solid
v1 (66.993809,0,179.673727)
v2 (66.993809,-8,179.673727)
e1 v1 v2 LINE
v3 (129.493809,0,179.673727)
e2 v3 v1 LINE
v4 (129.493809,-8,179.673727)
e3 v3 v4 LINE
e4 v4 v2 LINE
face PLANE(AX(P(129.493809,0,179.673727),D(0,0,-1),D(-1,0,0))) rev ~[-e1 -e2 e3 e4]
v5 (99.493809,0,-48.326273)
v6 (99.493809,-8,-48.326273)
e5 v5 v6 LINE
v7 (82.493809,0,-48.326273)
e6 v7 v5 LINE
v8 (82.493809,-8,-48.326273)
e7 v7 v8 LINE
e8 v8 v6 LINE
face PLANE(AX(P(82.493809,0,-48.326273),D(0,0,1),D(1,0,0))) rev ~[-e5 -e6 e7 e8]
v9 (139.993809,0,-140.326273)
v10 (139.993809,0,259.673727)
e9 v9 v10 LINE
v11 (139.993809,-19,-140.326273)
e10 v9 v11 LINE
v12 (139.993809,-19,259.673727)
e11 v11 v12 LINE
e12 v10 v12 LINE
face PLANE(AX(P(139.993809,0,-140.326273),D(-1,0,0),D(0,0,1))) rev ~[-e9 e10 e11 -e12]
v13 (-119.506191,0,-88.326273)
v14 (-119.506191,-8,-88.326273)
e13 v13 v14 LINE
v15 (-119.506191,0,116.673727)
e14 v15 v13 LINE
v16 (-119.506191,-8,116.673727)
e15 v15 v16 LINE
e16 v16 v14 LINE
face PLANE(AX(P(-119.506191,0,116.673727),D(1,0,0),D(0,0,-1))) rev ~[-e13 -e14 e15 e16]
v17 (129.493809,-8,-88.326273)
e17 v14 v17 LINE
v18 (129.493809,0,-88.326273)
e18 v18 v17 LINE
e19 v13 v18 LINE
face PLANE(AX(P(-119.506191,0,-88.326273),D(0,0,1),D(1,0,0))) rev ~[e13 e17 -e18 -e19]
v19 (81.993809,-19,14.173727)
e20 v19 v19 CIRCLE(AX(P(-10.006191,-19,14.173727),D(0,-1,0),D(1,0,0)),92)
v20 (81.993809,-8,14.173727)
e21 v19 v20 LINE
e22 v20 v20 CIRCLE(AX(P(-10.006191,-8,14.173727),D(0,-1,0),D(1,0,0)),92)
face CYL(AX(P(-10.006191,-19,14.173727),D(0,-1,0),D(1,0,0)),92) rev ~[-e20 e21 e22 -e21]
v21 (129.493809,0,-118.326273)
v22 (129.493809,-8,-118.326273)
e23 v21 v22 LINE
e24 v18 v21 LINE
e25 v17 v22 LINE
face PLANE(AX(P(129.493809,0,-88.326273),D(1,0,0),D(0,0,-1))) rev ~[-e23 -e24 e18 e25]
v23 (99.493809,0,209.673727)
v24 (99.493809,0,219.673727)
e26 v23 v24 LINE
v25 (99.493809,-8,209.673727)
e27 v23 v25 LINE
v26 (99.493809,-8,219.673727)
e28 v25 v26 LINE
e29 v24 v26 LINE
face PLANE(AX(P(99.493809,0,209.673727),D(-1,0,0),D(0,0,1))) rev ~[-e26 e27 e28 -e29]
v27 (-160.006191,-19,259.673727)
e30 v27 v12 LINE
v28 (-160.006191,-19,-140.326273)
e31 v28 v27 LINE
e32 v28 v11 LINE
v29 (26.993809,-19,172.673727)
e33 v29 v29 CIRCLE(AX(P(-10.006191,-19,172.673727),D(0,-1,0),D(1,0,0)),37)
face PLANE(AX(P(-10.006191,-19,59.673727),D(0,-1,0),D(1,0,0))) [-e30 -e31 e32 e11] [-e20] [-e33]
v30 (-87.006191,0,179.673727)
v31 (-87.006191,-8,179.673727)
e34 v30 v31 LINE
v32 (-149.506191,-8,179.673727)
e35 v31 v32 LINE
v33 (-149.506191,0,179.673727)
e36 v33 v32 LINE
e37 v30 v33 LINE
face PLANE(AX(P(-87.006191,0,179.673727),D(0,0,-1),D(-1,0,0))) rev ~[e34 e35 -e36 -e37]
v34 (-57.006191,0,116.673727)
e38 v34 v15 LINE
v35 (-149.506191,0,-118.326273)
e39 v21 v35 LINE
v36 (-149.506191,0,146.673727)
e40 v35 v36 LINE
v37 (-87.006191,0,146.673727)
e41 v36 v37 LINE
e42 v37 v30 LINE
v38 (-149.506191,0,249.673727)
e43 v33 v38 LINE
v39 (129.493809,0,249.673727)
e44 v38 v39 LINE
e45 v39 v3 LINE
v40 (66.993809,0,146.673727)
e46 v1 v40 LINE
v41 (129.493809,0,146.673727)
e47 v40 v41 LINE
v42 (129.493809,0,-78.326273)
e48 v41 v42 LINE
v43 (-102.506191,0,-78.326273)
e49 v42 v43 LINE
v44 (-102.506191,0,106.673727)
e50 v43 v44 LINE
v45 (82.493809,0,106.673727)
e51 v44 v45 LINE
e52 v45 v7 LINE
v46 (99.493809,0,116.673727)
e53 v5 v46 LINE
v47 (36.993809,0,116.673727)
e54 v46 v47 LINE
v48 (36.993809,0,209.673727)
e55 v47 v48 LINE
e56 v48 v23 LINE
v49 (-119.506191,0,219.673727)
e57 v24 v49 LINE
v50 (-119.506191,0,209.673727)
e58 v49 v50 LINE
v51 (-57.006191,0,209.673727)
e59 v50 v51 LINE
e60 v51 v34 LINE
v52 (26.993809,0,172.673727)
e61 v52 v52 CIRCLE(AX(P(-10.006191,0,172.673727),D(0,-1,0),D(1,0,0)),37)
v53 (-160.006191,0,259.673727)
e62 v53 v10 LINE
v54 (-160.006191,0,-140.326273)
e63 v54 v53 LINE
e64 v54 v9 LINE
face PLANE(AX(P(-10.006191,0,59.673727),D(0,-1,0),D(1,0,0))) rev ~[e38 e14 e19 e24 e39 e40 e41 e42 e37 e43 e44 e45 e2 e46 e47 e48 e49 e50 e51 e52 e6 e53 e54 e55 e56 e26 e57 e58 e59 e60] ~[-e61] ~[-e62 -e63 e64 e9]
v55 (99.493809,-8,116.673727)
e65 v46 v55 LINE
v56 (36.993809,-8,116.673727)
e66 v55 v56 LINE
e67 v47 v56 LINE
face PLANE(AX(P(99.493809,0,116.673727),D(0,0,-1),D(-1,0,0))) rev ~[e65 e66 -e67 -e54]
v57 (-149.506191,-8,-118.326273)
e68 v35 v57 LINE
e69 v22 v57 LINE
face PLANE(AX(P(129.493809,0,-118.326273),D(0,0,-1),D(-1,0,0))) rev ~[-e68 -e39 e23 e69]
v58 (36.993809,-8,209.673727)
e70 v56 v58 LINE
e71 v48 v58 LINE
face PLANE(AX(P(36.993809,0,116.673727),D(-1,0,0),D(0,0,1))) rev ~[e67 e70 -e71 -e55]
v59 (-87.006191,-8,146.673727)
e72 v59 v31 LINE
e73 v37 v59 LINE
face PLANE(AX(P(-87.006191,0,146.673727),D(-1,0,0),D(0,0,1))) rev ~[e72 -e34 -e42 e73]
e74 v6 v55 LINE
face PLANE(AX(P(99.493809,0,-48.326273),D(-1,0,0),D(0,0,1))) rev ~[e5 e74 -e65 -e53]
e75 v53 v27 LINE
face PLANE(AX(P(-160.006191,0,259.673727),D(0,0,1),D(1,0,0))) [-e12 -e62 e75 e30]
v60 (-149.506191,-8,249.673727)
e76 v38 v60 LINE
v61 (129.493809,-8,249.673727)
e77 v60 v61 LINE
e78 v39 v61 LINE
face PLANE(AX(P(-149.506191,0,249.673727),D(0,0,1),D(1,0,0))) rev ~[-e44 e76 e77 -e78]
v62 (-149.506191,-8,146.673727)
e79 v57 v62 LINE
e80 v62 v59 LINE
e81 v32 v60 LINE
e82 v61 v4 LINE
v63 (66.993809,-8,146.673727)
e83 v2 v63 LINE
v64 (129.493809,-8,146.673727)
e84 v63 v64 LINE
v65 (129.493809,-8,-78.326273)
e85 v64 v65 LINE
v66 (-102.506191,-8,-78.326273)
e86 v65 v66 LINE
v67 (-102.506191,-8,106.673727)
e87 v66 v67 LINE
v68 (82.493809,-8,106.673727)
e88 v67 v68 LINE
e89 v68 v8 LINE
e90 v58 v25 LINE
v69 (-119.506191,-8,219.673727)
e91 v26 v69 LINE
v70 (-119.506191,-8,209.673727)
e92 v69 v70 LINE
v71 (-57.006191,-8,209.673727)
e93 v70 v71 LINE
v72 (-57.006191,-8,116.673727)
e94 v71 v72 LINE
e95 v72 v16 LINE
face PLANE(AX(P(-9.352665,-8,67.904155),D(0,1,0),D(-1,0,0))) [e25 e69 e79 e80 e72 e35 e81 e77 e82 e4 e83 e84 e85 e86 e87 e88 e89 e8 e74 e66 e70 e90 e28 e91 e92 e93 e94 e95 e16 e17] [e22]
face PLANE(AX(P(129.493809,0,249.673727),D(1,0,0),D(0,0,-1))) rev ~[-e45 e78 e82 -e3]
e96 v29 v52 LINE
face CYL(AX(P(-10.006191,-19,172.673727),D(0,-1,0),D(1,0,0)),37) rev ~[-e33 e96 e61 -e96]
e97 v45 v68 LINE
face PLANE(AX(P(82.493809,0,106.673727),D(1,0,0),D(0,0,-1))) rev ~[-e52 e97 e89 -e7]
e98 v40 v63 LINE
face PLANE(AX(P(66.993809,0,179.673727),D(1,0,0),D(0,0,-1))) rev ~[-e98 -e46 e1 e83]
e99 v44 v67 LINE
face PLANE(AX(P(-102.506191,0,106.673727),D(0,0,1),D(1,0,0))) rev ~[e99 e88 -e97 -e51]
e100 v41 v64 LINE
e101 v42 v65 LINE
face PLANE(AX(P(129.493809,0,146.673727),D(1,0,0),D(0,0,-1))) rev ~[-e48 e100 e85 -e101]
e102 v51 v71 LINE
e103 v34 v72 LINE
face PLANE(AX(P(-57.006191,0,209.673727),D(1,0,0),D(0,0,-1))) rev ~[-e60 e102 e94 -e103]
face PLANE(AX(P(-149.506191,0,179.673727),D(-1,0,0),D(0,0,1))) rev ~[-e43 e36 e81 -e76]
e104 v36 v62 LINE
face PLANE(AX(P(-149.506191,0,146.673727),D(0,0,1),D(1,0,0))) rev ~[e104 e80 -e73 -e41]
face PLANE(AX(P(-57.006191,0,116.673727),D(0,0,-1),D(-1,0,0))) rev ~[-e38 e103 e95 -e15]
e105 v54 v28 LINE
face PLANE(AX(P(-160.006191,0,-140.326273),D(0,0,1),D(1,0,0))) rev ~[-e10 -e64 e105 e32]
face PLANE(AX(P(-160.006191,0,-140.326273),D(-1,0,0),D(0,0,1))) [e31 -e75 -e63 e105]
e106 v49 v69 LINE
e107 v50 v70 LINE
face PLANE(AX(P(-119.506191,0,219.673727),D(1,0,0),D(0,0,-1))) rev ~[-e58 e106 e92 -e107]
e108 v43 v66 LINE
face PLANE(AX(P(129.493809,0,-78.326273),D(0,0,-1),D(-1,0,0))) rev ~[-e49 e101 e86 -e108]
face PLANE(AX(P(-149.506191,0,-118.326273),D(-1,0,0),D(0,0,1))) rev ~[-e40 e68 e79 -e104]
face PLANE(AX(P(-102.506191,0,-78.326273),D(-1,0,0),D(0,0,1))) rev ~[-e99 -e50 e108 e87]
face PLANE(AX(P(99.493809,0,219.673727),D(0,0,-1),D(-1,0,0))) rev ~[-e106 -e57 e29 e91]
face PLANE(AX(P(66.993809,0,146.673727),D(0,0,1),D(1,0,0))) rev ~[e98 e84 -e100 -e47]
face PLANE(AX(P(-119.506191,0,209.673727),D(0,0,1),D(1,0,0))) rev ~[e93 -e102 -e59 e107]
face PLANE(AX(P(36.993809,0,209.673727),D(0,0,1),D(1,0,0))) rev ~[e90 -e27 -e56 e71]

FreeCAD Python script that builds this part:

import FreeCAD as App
import Part
import Sketcher

V = App.Vector
Q = App.Units.Quantity


def add_polygon(sketch, points):
    """Adds a closed chain of lines whose ends are joined by coincident constraints."""
    first, n = sketch.GeometryCount, len(points)
    for a, b in zip(points, points[1:] + points[:1]):
        sketch.addGeometry(Part.LineSegment(App.Vector(*a, 0), App.Vector(*b, 0)), False)
    for i in range(n):
        sketch.addConstraint(Sketcher.Constraint("Coincident", first + i, 2, first + (i + 1) % n, 1))

doc = App.newDocument("Part")
body = doc.addObject("PartDesign::Body", "Body")

# Sketch on XZ plane
sketch1 = body.newObject("Sketcher::SketchObject", "Sketch")
sketch1.AttachmentSupport = (doc.getObject("XZ_Plane"), [""])
sketch1.MapMode = "FlatFace"
add_polygon(sketch1, [(-160, 260), (-160, -140), (140, -140), (140, 260)])  # lines 0-3
sketch1.addConstraint([
    Sketcher.Constraint("Vertical", 0),
    Sketcher.Constraint("Horizontal", 1),
    Sketcher.Constraint("Vertical", 2),
    Sketcher.Constraint("Horizontal", 3),
    Sketcher.Constraint("DistanceX", 1, 1, 1, 2, Q("300 mm")),
    Sketcher.Constraint("DistanceY", 0, 2, 0, 1, Q("400 mm")),
    Sketcher.Constraint("DistanceX", 0, 2, -1, 1, Q("160.006191 mm")),
    Sketcher.Constraint("DistanceY", 0, 2, -1, 1, Q("140.326273 mm")),
])
pad1 = body.newObject("PartDesign::Pad", "Pad")
pad1.Profile = sketch1
pad1.Length = 19

# Sketch on XZ plane
sketch2 = body.newObject("Sketcher::SketchObject", "Sketch001")
sketch2.AttachmentSupport = (doc.getObject("XZ_Plane"), [""])
sketch2.MapMode = "FlatFace"
sketch2.AttachmentOffset = App.Placement(V(0, 0, 19), App.Rotation())
sketch2.addGeometry([
    Part.Circle(V(-10, 173, 0), V(0, 0, 1), 37),
    Part.Circle(V(-10, 14, 0), V(0, 0, 1), 92),
], False)
sketch2.addConstraint([
    Sketcher.Constraint("Vertical", 0, 3, 1, 3),
    Sketcher.Constraint("Diameter", 0, Q("74 mm")),
    Sketcher.Constraint("Diameter", 1, Q("184 mm")),
    Sketcher.Constraint("DistanceY", 1, 3, 0, 3, Q("158.5 mm")),
    Sketcher.Constraint("DistanceX", 0, 3, -1, 1, Q("10.006191 mm")),
    Sketcher.Constraint("DistanceY", -1, 1, 0, 3, Q("172.673727 mm")),
])
pocket1 = body.newObject("PartDesign::Pocket", "Pocket")
pocket1.Profile = sketch2
pocket1.Length = 19

# Sketch on XZ plane
sketch3 = body.newObject("Sketcher::SketchObject", "Sketch002")
sketch3.AttachmentSupport = (doc.getObject("XZ_Plane"), [""])
sketch3.MapMode = "FlatFace"
add_polygon(sketch3, [(-120, -88), (129, -88), (129, -118), (-150, -118), (-150, 147), (-87, 147), (-87, 180), (-150, 180), (-150, 250), (129, 250), (129, 180), (67, 180), (67, 147), (129, 147), (129, -78), (-103, -78), (-103, 107), (82, 107), (82, -48), (99, -48), (99, 117), (37, 117), (37, 210), (99, 210), (99, 220), (-120, 220), (-120, 210), (-57, 210), (-57, 117), (-120, 117)])  # lines 0-29
sketch3.addConstraint([
    Sketcher.Constraint("Horizontal", 0),
    Sketcher.Constraint("Vertical", 1),
    Sketcher.Constraint("Horizontal", 2),
    Sketcher.Constraint("Vertical", 3),
    Sketcher.Constraint("Horizontal", 4),
    Sketcher.Constraint("Vertical", 5),
    Sketcher.Constraint("Horizontal", 6),
    Sketcher.Constraint("Vertical", 7),
    Sketcher.Constraint("Horizontal", 8),
    Sketcher.Constraint("Vertical", 9),
    Sketcher.Constraint("Horizontal", 10),
    Sketcher.Constraint("Vertical", 11),
    Sketcher.Constraint("Horizontal", 12),
    Sketcher.Constraint("Vertical", 13),
    Sketcher.Constraint("Horizontal", 14),
    Sketcher.Constraint("Vertical", 15),
    Sketcher.Constraint("Horizontal", 16),
    Sketcher.Constraint("Vertical", 17),
    Sketcher.Constraint("Horizontal", 18),
    Sketcher.Constraint("Vertical", 19),
    Sketcher.Constraint("Horizontal", 20),
    Sketcher.Constraint("Vertical", 21),
    Sketcher.Constraint("Horizontal", 22),
    Sketcher.Constraint("Vertical", 23),
    Sketcher.Constraint("Horizontal", 24),
    Sketcher.Constraint("Vertical", 25),
    Sketcher.Constraint("Horizontal", 26),
    Sketcher.Constraint("Vertical", 27),
    Sketcher.Constraint("Horizontal", 28),
    Sketcher.Constraint("Vertical", 29),
    Sketcher.Constraint("Horizontal", 6, 2, 9, 2),
    Sketcher.Constraint("Horizontal", 4, 2, 11, 2),
    Sketcher.Constraint("Horizontal", 22, 2, 25, 2),
    Sketcher.Constraint("Horizontal", 20, 2, 27, 2),
    Sketcher.Constraint("Vertical", 3, 2, 6, 2),
    Sketcher.Constraint("Vertical", 1, 2, 8, 2),
    Sketcher.Constraint("Vertical", 9, 2, 12, 2),
    Sketcher.Constraint("Vertical", 19, 2, 22, 2),
    Sketcher.Constraint("Vertical", 25, 2, 28, 2),
    Sketcher.Constraint("Equal", 6, 10),
    Sketcher.Constraint("Equal", 12, 20),
    Sketcher.Constraint("Equal", 22, 26),
    Sketcher.Constraint("Equal", 16, 15),
    Sketcher.Constraint("DistanceX", 0, 1, 0, 2, Q("249 mm")),
    Sketcher.Constraint("DistanceX", 2, 2, 2, 1, Q("279 mm")),
    Sketcher.Constraint("DistanceX", 14, 2, 14, 1, Q("232 mm")),
    Sketcher.Constraint("DistanceX", 16, 1, 16, 2, Q("185 mm")),
    Sketcher.Constraint("DistanceX", 18, 1, 18, 2, Q("17 mm")),
    Sketcher.Constraint("DistanceY", 1, 2, 1, 1, Q("30 mm")),
    Sketcher.Constraint("DistanceY", 3, 1, 3, 2, Q("265 mm")),
    Sketcher.Constraint("DistanceY", 5, 1, 5, 2, Q("33 mm")),
    Sketcher.Constraint("DistanceY", 7, 1, 7, 2, Q("70 mm")),
    Sketcher.Constraint("DistanceY", 13, 2, 13, 1, Q("225 mm")),
    Sketcher.Constraint("DistanceY", 17, 2, 17, 1, Q("155 mm")),
    Sketcher.Constraint("DistanceY", 19, 1, 19, 2, Q("165 mm")),
    Sketcher.Constraint("DistanceY", 21, 1, 21, 2, Q("93 mm")),
    Sketcher.Constraint("DistanceY", 23, 1, 23, 2, Q("10 mm")),
    Sketcher.Constraint("DistanceX", 4, 1, 4, 2, Q("62.5 mm")),
    Sketcher.Constraint("DistanceX", -1, 1, 0, 2, Q("129.493809 mm")),
    Sketcher.Constraint("DistanceY", 0, 2, -1, 1, Q("88.326273 mm")),
])
pocket2 = body.newObject("PartDesign::Pocket", "Pocket001")
pocket2.Profile = sketch3
pocket2.Length = 8
pocket2.Reversed = True

doc.recompute()
